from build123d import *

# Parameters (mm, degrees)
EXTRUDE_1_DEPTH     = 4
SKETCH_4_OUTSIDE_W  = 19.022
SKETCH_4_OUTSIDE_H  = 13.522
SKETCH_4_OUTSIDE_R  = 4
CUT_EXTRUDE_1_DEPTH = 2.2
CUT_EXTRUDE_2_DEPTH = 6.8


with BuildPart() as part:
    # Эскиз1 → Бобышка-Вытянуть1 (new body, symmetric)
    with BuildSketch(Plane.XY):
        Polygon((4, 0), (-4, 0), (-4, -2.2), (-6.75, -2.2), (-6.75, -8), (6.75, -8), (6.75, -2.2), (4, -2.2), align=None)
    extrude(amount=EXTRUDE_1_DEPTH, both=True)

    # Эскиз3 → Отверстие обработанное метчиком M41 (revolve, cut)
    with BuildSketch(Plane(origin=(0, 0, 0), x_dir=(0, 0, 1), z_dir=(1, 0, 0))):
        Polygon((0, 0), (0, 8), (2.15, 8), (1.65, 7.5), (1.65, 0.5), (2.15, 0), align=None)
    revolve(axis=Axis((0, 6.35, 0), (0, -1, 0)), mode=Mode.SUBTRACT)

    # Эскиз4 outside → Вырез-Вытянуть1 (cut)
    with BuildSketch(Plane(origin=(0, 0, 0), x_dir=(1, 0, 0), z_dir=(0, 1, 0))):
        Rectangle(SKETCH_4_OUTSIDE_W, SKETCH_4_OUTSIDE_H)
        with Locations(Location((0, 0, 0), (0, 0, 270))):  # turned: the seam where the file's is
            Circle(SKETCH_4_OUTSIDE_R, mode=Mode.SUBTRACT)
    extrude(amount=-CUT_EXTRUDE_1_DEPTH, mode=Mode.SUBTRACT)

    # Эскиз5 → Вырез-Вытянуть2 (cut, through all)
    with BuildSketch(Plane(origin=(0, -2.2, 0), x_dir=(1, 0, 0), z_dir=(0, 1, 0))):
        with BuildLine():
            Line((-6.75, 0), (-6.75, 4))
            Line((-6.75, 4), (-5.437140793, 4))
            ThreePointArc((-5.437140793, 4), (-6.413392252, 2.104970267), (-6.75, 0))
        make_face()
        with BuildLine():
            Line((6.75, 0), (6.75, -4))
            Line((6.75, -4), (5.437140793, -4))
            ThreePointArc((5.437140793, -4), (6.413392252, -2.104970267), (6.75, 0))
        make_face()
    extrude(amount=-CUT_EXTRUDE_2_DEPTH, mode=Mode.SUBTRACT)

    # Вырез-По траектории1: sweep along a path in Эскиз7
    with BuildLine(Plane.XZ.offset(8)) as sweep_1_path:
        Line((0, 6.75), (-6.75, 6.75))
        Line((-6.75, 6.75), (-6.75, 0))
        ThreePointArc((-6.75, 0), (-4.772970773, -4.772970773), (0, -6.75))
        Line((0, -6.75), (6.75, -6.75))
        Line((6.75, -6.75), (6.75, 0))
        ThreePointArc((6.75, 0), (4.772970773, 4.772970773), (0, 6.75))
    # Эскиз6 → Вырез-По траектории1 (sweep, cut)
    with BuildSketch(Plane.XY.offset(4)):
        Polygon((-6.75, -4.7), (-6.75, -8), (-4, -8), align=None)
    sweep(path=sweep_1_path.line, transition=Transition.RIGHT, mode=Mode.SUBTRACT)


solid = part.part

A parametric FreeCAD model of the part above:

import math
import FreeCAD as App
import Part
import Sketcher

V = App.Vector

doc = App.newDocument("Part")
body = doc.addObject("PartDesign::Body", "Body")

# Sketch on XY plane
sketch1 = body.newObject("Sketcher::SketchObject", "Sketch")
sketch1.AttachmentSupport = (doc.getObject("XY_Plane"), [""])
sketch1.MapMode = "FlatFace"
sketch1.addGeometry(Part.LineSegment(V(4, 0, 0), V(-4, 0, 0)), False)
sketch1.addGeometry(Part.LineSegment(V(-4, 0, 0), V(-4, -2.2, 0)), False)
sketch1.addGeometry(Part.LineSegment(V(-4, -2.2, 0), V(-6.8, -2.2, 0)), False)
sketch1.addGeometry(Part.LineSegment(V(-6.8, -2.2, 0), V(-6.8, -8, 0)), False)
sketch1.addGeometry(Part.LineSegment(V(-6.8, -8, 0), V(6.8, -8, 0)), False)
sketch1.addGeometry(Part.LineSegment(V(6.8, -8, 0), V(6.8, -2.2, 0)), False)
sketch1.addGeometry(Part.LineSegment(V(6.8, -2.2, 0), V(4, -2.2, 0)), False)
sketch1.addGeometry(Part.LineSegment(V(4, -2.2, 0), V(4, 0, 0)), False)
sketch1.addConstraint(Sketcher.Constraint("Coincident", 0, 2, 1, 1))
sketch1.addConstraint(Sketcher.Constraint("Coincident", 1, 2, 2, 1))
sketch1.addConstraint(Sketcher.Constraint("Coincident", 2, 2, 3, 1))
sketch1.addConstraint(Sketcher.Constraint("Coincident", 3, 2, 4, 1))
sketch1.addConstraint(Sketcher.Constraint("Coincident", 4, 2, 5, 1))
sketch1.addConstraint(Sketcher.Constraint("Coincident", 5, 2, 6, 1))
sketch1.addConstraint(Sketcher.Constraint("Coincident", 6, 2, 7, 1))
sketch1.addConstraint(Sketcher.Constraint("Coincident", 7, 2, 0, 1))
sketch1.addConstraint(Sketcher.Constraint("Horizontal", 0))
sketch1.addConstraint(Sketcher.Constraint("Vertical", 1))
sketch1.addConstraint(Sketcher.Constraint("Horizontal", 2))
sketch1.addConstraint(Sketcher.Constraint("Vertical", 3))
sketch1.addConstraint(Sketcher.Constraint("Horizontal", 4))
sketch1.addConstraint(Sketcher.Constraint("Vertical", 5))
sketch1.addConstraint(Sketcher.Constraint("Horizontal", 6))
sketch1.addConstraint(Sketcher.Constraint("Vertical", 7))
sketch1.addConstraint(Sketcher.Constraint("Symmetric", 0, 2, 7, 2, -1, 1))
sketch1.addConstraint(Sketcher.Constraint("Symmetric", 2, 2, 5, 2, -2))
sketch1.addConstraint(Sketcher.Constraint("DistanceX", 0, 2, 0, 1, 8.0))
sketch1.addConstraint(Sketcher.Constraint("DistanceX", 4, 1, 4, 2, 13.5))
sketch1.addConstraint(Sketcher.Constraint("DistanceY", 1, 2, 1, 1, 2.2))
sketch1.addConstraint(Sketcher.Constraint("DistanceY", 3, 2, 3, 1, 5.8))
pad1 = body.newObject("PartDesign::Pad", "Pad")
pad1.Profile = sketch1
pad1.Length = 8
pad1.Midplane = True

# Sketch on YZ plane
sketch2 = body.newObject("Sketcher::SketchObject", "Sketch001")
sketch2.AttachmentSupport = (doc.getObject("YZ_Plane"), [""])
sketch2.MapMode = "FlatFace"
sketch2.addGeometry(Part.LineSegment(V(-8, 0, 0), V(0, 0, 0)), False)
sketch2.addGeometry(Part.LineSegment(V(0, 0, 0), V(0, 2.1, 0)), False)
sketch2.addGeometry(Part.LineSegment(V(0, 2.1, 0), V(-0.5, 1.6, 0)), False)
sketch2.addGeometry(Part.LineSegment(V(-0.5, 1.6, 0), V(-7.5, 1.6, 0)), False)
sketch2.addGeometry(Part.LineSegment(V(-7.5, 1.6, 0), V(-8, 2.1, 0)), False)
sketch2.addGeometry(Part.LineSegment(V(-8, 2.1, 0), V(-8, 0, 0)), False)
sketch2.addConstraint(Sketcher.Constraint("Coincident", 0, 2, 1, 1))
sketch2.addConstraint(Sketcher.Constraint("Coincident", 1, 2, 2, 1))
sketch2.addConstraint(Sketcher.Constraint("Coincident", 2, 2, 3, 1))
sketch2.addConstraint(Sketcher.Constraint("Coincident", 3, 2, 4, 1))
sketch2.addConstraint(Sketcher.Constraint("Coincident", 4, 2, 5, 1))
sketch2.addConstraint(Sketcher.Constraint("Coincident", 5, 2, 0, 1))
sketch2.addConstraint(Sketcher.Constraint("Horizontal", 0))
sketch2.addConstraint(Sketcher.Constraint("Vertical", 1))
sketch2.addConstraint(Sketcher.Constraint("Horizontal", 3))
sketch2.addConstraint(Sketcher.Constraint("Vertical", 5))
sketch2.addConstraint(Sketcher.Constraint("Coincident", 0, 2, -1, 1))
sketch2.addConstraint(Sketcher.Constraint("Perpendicular", 2, 4))
sketch2.addConstraint(Sketcher.Constraint("Horizontal", 1, 2, 4, 2))
sketch2.addConstraint(Sketcher.Constraint("Equal", 2, 4))
sketch2.addConstraint(Sketcher.Constraint("DistanceX", 0, 1, 0, 2, 8.0))
sketch2.addConstraint(Sketcher.Constraint("DistanceX", 3, 2, 3, 1, 7.0))
sketch2.addConstraint(Sketcher.Constraint("DistanceY", 1, 1, 1, 2, 2.15))
groove = body.newObject("PartDesign::Groove", "Groove")
groove.Profile = sketch2
groove.ReferenceAxis = (sketch2, ["H_Axis"])
groove.Angle = 360

# Sketch on XZ plane
sketch3 = body.newObject("Sketcher::SketchObject", "Sketch002")
sketch3.AttachmentSupport = (doc.getObject("XZ_Plane"), [""])
sketch3.MapMode = "FlatFace"
sketch3.addGeometry(Part.LineSegment(V(-9.5, -6.8, 0), V(-9.5, 6.8, 0)), False)
sketch3.addGeometry(Part.LineSegment(V(-9.5, 6.8, 0), V(9.5, 6.8, 0)), False)
sketch3.addGeometry(Part.LineSegment(V(9.5, 6.8, 0), V(9.5, -6.8, 0)), False)
sketch3.addGeometry(Part.LineSegment(V(9.5, -6.8, 0), V(-9.5, -6.8, 0)), False)
sketch3.addGeometry(Part.Circle(V(0, 0, 0), V(0, 0, 1), 4), False)
sketch3.addConstraint(Sketcher.Constraint("Coincident", 0, 2, 1, 1))
sketch3.addConstraint(Sketcher.Constraint("Coincident", 1, 2, 2, 1))
sketch3.addConstraint(Sketcher.Constraint("Coincident", 2, 2, 3, 1))
sketch3.addConstraint(Sketcher.Constraint("Coincident", 3, 2, 0, 1))
sketch3.addConstraint(Sketcher.Constraint("Vertical", 0))
sketch3.addConstraint(Sketcher.Constraint("Horizontal", 1))
sketch3.addConstraint(Sketcher.Constraint("Vertical", 2))
sketch3.addConstraint(Sketcher.Constraint("Horizontal", 3))
sketch3.addConstraint(Sketcher.Constraint("Coincident", 4, 3, -1, 1))
sketch3.addConstraint(Sketcher.Constraint("Symmetric", 0, 2, 2, 2, -1, 1))
sketch3.addConstraint(Sketcher.Constraint("Diameter", 4, 8.0))
sketch3.addConstraint(Sketcher.Constraint("DistanceX", 1, 1, 1, 2, 19.022))
sketch3.addConstraint(Sketcher.Constraint("DistanceY", 0, 1, 0, 2, 13.522))
pocket1 = body.newObject("PartDesign::Pocket", "Pocket")
pocket1.Profile = sketch3
pocket1.Length = 2.2
pocket1.Reversed = True

# Sketch on XZ plane
sketch4 = body.newObject("Sketcher::SketchObject", "Sketch003")
sketch4.AttachmentSupport = (doc.getObject("XZ_Plane"), [""])
sketch4.MapMode = "FlatFace"
sketch4.AttachmentOffset = App.Placement(V(0, 0, 2.2), App.Rotation())
sketch4.addGeometry(Part.LineSegment(V(-6.8, -4, 0), V(-6.8, 0, 0)), False)
sketch4.addGeometry(Part.ArcOfCircle(Part.Circle(V(0, 0, 0), V(0, 0, 1), 6.7), math.radians(180), math.radians(216)), False)
sketch4.addGeometry(Part.LineSegment(V(-5.4, -4, 0), V(-6.8, -4, 0)), False)
sketch4.addGeometry(Part.LineSegment(V(6.8, 4, 0), V(6.8, 0, 0)), False)
sketch4.addGeometry(Part.ArcOfCircle(Part.Circle(V(0, 0, 0), V(0, 0, 1), 6.7), math.radians(0), math.radians(36)), False)
sketch4.addGeometry(Part.LineSegment(V(5.4, 4, 0), V(6.8, 4, 0)), False)
sketch4.addConstraint(Sketcher.Constraint("Tangent", 0, 2, 1, 1))
sketch4.addConstraint(Sketcher.Constraint("Coincident", 1, 2, 2, 1))
sketch4.addConstraint(Sketcher.Constraint("Coincident", 2, 2, 0, 1))
sketch4.addConstraint(Sketcher.Constraint("Tangent", 3, 2, 4, 1))
sketch4.addConstraint(Sketcher.Constraint("Coincident", 4, 2, 5, 1))
sketch4.addConstraint(Sketcher.Constraint("Coincident", 5, 2, 3, 1))
sketch4.addConstraint(Sketcher.Constraint("Vertical", 0))
sketch4.addConstraint(Sketcher.Constraint("Horizontal", 2))
sketch4.addConstraint(Sketcher.Constraint("Vertical", 3))
sketch4.addConstraint(Sketcher.Constraint("Horizontal", 5))
sketch4.addConstraint(Sketcher.Constraint("Coincident", 1, 3, -1, 1))
sketch4.addConstraint(Sketcher.Constraint("Coincident", 4, 3, -1, 1))
sketch4.addConstraint(Sketcher.Constraint("Equal", 1, 4))
sketch4.addConstraint(Sketcher.Constraint("Equal", 2, 5))
sketch4.addConstraint(Sketcher.Constraint("DistanceY", 0, 1, 0, 2, 4.0))
sketch4.addConstraint(Sketcher.Constraint("Radius", 1, 6.75))
pocket2 = body.newObject("PartDesign::Pocket", "Pocket001")
pocket2.Profile = sketch4
pocket2.Type = "ThroughAll"
pocket2.Reversed = True

# Sketch on XY plane
sketch5 = body.newObject("Sketcher::SketchObject", "Sketch004")
sketch5.AttachmentSupport = (doc.getObject("XY_Plane"), [""])
sketch5.MapMode = "FlatFace"
sketch5.AttachmentOffset = App.Placement(V(0, 0, 4), App.Rotation())
sketch5.addGeometry(Part.LineSegment(V(-6.8, -4.7, 0), V(-6.8, -8, 0)), False)
sketch5.addGeometry(Part.LineSegment(V(-6.8, -8, 0), V(-4, -8, 0)), False)
sketch5.addGeometry(Part.LineSegment(V(-4, -8, 0), V(-6.8, -4.7, 0)), False)
sketch5.addConstraint(Sketcher.Constraint("Coincident", 0, 2, 1, 1))
sketch5.addConstraint(Sketcher.Constraint("Coincident", 1, 2, 2, 1))
sketch5.addConstraint(Sketcher.Constraint("Coincident", 2, 2, 0, 1))
sketch5.addConstraint(Sketcher.Constraint("Vertical", 0))
sketch5.addConstraint(Sketcher.Constraint("Horizontal", 1))
sketch5.addConstraint(Sketcher.Constraint("DistanceY", 0, 2, 0, 1, 3.3))
sketch5.addConstraint(Sketcher.Constraint("DistanceY", 0, 2, -1, 1, 8.0))
sketch5.addConstraint(Sketcher.Constraint("DistanceX", 1, 2, -1, 1, 4.0))
sketch5.addConstraint(Sketcher.Constraint("DistanceX", 1, 1, 1, 2, 2.75))

# Sketch on XZ plane
sketch6 = body.newObject("Sketcher::SketchObject", "Sketch005")
sketch6.AttachmentSupport = (doc.getObject("XZ_Plane"), [""])
sketch6.MapMode = "FlatFace"
sketch6.AttachmentOffset = App.Placement(V(0, 0, 8), App.Rotation())
sketch6.addGeometry(Part.LineSegment(V(0, 7, 0), V(-7, 7, 0)), False)
sketch6.addGeometry(Part.LineSegment(V(-7, 7, 0), V(-7, 0, 0)), False)
sketch6.addGeometry(Part.ArcOfCircle(Part.Circle(V(0, 0, 0), V(0, 0, 1), 7), math.radians(180), math.radians(270)), False)
sketch6.addGeometry(Part.LineSegment(V(0, -7, 0), V(7, -7, 0)), False)
sketch6.addGeometry(Part.LineSegment(V(7, -7, 0), V(7, 0, 0)), False)
sketch6.addGeometry(Part.ArcOfCircle(Part.Circle(V(0, 0, 0), V(0, 0, 1), 7), math.radians(0), math.radians(90)), False)
sketch6.addConstraint(Sketcher.Constraint("Coincident", 0, 2, 1, 1))
sketch6.addConstraint(Sketcher.Constraint("Tangent", 1, 2, 2, 1))
sketch6.addConstraint(Sketcher.Constraint("Tangent", 2, 2, 3, 1))
sketch6.addConstraint(Sketcher.Constraint("Coincident", 3, 2, 4, 1))
sketch6.addConstraint(Sketcher.Constraint("Tangent", 4, 2, 5, 1))
sketch6.addConstraint(Sketcher.Constraint("Tangent", 5, 2, 0, 1))
sketch6.addConstraint(Sketcher.Constraint("Horizontal", 0))
sketch6.addConstraint(Sketcher.Constraint("Vertical", 1))
sketch6.addConstraint(Sketcher.Constraint("Horizontal", 3))
sketch6.addConstraint(Sketcher.Constraint("Vertical", 4))
sketch6.addConstraint(Sketcher.Constraint("Coincident", 2, 3, -1, 1))
sketch6.addConstraint(Sketcher.Constraint("Coincident", 5, 3, -1, 1))
sketch6.addConstraint(Sketcher.Constraint("Equal", 2, 5))
sketch6.addConstraint(Sketcher.Constraint("Radius", 2, 6.75))
doc.recompute()

subtractivepipe = body.newObject("PartDesign::SubtractivePipe", "SubtractivePipe")
subtractivepipe.Profile = sketch5
subtractivepipe.Spine = (sketch6, ["Edge1", "Edge2", "Edge3", "Edge4", "Edge5", "Edge6"])
subtractivepipe.Transition = "Right corner"

doc.recompute()
